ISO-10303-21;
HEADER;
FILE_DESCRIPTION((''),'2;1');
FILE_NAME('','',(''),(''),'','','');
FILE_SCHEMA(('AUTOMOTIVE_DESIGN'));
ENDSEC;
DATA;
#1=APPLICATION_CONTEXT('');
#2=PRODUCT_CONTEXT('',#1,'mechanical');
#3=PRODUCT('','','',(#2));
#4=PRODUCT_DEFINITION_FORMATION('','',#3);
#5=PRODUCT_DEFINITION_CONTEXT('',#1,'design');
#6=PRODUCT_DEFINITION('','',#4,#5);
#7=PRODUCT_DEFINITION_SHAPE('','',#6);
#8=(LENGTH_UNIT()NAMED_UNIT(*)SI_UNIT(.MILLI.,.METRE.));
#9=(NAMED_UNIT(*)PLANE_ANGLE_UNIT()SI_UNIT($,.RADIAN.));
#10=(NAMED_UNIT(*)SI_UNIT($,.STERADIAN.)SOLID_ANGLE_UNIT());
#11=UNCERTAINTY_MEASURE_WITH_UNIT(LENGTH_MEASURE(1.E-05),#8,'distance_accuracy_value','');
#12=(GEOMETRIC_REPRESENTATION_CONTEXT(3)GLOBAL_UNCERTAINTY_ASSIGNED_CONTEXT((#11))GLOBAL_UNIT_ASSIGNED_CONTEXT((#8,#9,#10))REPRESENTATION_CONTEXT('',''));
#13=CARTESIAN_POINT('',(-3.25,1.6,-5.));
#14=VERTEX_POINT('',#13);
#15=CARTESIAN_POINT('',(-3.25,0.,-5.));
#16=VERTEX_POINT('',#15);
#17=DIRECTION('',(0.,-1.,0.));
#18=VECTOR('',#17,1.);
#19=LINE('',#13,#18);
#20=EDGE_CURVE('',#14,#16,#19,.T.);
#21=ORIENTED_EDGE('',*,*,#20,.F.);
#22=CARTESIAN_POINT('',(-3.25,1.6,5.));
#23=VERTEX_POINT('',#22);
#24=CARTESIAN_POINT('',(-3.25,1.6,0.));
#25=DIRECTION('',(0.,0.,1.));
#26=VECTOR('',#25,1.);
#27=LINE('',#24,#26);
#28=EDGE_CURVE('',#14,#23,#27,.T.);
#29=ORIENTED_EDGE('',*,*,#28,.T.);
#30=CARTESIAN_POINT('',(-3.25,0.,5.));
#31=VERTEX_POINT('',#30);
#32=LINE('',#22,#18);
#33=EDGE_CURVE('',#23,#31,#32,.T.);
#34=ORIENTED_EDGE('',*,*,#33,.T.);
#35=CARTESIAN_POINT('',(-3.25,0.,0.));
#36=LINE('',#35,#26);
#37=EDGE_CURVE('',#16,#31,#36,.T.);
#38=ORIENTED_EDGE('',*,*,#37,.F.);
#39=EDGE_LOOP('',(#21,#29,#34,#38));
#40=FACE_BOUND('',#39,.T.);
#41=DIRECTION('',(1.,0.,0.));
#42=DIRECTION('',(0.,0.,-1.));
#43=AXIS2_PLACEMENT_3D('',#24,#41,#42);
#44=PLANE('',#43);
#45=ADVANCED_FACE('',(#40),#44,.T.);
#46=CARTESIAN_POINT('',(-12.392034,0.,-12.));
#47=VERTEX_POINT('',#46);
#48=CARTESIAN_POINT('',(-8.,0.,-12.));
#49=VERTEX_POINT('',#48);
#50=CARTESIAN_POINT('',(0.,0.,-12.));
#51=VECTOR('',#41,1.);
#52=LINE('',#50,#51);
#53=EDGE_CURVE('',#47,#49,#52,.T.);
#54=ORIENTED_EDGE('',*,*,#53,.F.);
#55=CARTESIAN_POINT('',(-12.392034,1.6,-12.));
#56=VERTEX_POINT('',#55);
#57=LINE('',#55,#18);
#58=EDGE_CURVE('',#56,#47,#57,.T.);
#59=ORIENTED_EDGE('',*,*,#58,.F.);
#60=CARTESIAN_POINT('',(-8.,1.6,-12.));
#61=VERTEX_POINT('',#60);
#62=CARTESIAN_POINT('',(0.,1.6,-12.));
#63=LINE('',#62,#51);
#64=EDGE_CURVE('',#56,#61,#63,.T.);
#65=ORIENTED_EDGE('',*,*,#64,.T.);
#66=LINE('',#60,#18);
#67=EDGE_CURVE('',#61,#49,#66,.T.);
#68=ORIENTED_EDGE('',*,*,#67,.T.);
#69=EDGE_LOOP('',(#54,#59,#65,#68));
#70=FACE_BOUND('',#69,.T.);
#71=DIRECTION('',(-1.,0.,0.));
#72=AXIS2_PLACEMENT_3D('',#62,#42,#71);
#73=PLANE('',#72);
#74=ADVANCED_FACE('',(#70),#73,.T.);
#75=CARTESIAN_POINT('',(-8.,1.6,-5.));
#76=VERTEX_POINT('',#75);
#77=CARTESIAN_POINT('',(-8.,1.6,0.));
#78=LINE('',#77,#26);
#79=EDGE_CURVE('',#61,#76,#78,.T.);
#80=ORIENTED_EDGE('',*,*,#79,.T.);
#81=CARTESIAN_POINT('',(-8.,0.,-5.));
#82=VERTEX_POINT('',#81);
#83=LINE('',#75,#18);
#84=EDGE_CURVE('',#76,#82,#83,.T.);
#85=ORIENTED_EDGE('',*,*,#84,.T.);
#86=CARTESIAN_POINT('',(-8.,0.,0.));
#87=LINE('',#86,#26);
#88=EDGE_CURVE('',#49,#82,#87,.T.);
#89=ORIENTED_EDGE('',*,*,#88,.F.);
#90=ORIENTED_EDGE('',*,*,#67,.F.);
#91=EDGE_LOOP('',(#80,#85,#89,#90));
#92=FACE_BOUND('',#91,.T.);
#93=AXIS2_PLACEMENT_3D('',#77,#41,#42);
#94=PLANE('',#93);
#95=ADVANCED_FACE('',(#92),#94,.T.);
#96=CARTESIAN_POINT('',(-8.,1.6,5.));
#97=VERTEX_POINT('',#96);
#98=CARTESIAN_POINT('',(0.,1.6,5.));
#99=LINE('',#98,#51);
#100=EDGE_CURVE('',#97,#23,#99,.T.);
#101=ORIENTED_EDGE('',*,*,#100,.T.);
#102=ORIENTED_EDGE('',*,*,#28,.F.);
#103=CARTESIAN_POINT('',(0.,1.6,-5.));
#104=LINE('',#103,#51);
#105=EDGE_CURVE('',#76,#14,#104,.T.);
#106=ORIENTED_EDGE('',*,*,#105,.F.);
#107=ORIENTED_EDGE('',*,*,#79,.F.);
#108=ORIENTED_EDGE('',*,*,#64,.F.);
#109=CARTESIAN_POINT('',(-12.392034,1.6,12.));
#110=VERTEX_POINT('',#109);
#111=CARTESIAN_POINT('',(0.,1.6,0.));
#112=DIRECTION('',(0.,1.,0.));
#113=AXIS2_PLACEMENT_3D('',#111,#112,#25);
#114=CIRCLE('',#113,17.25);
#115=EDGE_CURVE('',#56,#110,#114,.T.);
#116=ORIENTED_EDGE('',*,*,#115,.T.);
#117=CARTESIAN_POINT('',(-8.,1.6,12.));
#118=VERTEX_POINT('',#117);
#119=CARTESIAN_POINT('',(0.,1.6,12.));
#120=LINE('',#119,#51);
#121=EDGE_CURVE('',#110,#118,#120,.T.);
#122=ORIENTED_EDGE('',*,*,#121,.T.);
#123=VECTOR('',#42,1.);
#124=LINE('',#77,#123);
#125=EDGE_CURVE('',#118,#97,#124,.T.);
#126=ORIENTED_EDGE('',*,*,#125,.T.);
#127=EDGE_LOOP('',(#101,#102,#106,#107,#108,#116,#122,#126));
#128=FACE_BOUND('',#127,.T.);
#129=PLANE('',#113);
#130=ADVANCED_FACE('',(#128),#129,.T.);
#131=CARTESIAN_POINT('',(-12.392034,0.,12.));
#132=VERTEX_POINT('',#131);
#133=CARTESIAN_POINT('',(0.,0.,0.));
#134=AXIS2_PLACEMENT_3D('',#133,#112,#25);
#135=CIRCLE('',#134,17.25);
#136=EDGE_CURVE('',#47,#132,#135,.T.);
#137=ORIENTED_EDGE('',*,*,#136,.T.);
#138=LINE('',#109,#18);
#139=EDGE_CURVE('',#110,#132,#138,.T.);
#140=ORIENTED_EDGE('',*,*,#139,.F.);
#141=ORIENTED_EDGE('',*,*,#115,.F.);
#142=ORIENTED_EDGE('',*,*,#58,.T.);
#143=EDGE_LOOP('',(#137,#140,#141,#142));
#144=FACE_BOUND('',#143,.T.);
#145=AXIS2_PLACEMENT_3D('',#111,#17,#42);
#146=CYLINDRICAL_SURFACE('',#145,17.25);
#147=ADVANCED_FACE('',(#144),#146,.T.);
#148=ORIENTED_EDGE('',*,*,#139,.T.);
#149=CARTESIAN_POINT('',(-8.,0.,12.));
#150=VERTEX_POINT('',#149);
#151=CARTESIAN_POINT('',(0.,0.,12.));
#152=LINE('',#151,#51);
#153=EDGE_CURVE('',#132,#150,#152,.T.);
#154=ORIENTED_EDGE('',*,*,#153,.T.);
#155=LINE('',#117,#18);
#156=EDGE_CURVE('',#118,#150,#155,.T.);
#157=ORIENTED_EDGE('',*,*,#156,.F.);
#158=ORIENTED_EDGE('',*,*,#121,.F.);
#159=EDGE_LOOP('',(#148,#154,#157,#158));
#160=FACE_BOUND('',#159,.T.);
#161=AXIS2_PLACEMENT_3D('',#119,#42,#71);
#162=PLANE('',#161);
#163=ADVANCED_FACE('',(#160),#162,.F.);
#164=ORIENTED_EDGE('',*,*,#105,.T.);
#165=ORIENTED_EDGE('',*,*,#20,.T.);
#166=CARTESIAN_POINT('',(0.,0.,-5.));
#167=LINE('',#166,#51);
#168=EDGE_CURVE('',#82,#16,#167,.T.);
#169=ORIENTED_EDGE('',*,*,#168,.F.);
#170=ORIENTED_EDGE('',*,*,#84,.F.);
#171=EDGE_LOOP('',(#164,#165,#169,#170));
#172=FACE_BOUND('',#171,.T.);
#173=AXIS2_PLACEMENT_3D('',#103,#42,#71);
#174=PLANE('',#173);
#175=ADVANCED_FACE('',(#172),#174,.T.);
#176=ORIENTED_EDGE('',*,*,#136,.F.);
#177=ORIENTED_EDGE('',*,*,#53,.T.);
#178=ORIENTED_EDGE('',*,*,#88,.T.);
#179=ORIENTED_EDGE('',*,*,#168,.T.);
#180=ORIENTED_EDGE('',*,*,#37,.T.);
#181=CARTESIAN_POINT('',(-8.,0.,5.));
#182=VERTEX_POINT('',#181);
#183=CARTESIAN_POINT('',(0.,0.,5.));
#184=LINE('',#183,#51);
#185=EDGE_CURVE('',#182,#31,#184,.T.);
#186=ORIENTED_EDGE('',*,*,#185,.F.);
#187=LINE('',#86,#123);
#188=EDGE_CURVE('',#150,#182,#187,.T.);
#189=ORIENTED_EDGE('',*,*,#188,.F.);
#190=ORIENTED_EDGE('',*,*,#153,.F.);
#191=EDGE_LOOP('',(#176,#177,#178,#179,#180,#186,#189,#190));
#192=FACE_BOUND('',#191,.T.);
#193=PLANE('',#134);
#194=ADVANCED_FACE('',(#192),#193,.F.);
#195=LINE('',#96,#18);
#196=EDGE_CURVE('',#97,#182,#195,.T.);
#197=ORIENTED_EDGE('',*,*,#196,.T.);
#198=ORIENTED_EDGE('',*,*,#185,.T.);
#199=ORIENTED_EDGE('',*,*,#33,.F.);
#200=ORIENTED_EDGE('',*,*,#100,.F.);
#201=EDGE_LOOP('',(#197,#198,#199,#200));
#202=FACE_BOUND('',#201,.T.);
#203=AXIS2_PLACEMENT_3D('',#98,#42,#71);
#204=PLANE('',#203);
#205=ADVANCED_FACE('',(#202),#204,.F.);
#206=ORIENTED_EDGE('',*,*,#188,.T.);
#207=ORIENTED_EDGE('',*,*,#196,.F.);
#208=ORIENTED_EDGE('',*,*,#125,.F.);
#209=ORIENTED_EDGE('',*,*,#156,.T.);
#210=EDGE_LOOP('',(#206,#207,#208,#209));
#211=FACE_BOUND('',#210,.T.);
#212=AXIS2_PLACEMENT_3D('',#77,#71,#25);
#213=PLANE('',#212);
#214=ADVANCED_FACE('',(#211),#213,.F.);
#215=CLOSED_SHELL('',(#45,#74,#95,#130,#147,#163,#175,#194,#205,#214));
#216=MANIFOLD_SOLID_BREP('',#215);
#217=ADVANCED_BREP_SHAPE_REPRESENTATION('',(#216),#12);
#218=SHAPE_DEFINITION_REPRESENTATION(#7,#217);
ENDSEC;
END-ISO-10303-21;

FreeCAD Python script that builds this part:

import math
import FreeCAD as App
import Part
import Sketcher

V = App.Vector

doc = App.newDocument("Part")
body = doc.addObject("PartDesign::Body", "Body")

sketch1 = body.newObject("Sketcher::SketchObject", "Sketch")
sketch1.AttachmentSupport = (doc.getObject("XZ_Plane"), [""])
sketch1.MapMode = "FlatFace"
sketch1.addGeometry(Part.ArcOfCircle(Part.Circle(V(0, 0, 0), V(0, 0, 1), 17.2), math.radians(136), math.radians(180)), False)
sketch1.addGeometry(Part.LineSegment(V(-12.4, 12, 0), V(-8, 12, 0)), False)
sketch1.addGeometry(Part.LineSegment(V(-8, 12, 0), V(-8, 5, 0)), False)
sketch1.addGeometry(Part.LineSegment(V(-8, 5, 0), V(-3.2, 5, 0)), False)
sketch1.addGeometry(Part.LineSegment(V(-3.2, 5, 0), V(-3.2, -5, 0)), False)
sketch1.addGeometry(Part.LineSegment(V(-3.2, -5, 0), V(-8, -5, 0)), False)
sketch1.addGeometry(Part.LineSegment(V(-8, -5, 0), V(-8, -12, 0)), False)
sketch1.addGeometry(Part.LineSegment(V(-8, -12, 0), V(-12.4, -12, 0)), False)
sketch1.addGeometry(Part.ArcOfCircle(Part.Circle(V(0, 0, 0), V(0, 0, 1), 17.2), math.radians(180), math.radians(224)), False)
sketch1.addConstraint(Sketcher.Constraint("Coincident", 0, 1, 1, 1))
sketch1.addConstraint(Sketcher.Constraint("Coincident", 1, 2, 2, 1))
sketch1.addConstraint(Sketcher.Constraint("Coincident", 2, 2, 3, 1))
sketch1.addConstraint(Sketcher.Constraint("Coincident", 3, 2, 4, 1))
sketch1.addConstraint(Sketcher.Constraint("Coincident", 4, 2, 5, 1))
sketch1.addConstraint(Sketcher.Constraint("Coincident", 5, 2, 6, 1))
sketch1.addConstraint(Sketcher.Constraint("Coincident", 6, 2, 7, 1))
sketch1.addConstraint(Sketcher.Constraint("Coincident", 7, 2, 8, 2))
sketch1.addConstraint(Sketcher.Constraint("Tangent", 8, 1, 0, 2))
sketch1.addConstraint(Sketcher.Constraint("Horizontal", 1))
sketch1.addConstraint(Sketcher.Constraint("Vertical", 2))
sketch1.addConstraint(Sketcher.Constraint("Horizontal", 3))
sketch1.addConstraint(Sketcher.Constraint("Vertical", 4))
sketch1.addConstraint(Sketcher.Constraint("Horizontal", 5))
sketch1.addConstraint(Sketcher.Constraint("Vertical", 6))
sketch1.addConstraint(Sketcher.Constraint("Horizontal", 7))
sketch1.addConstraint(Sketcher.Constraint("Coincident", 0, 3, -1, 1))
sketch1.addConstraint(Sketcher.Constraint("Equal", 0, 8))
sketch1.addConstraint(Sketcher.Constraint("Symmetric", 2, 2, 5, 2, -1))
sketch1.addConstraint(Sketcher.Constraint("PointOnObject", 8, 1, -1))
sketch1.addConstraint(Sketcher.Constraint("Vertical", 0, 1, 7, 2))
sketch1.addConstraint(Sketcher.Constraint("DistanceY", 2, 2, 2, 1, 7.0))
sketch1.addConstraint(Sketcher.Constraint("DistanceY", 4, 2, 4, 1, 10.0))
sketch1.addConstraint(Sketcher.Constraint("Radius", 0, 17.25))
sketch1.addConstraint(Sketcher.Constraint("DistanceX", 1, 2, -1, 1, 8.0))
sketch1.addConstraint(Sketcher.Constraint("DistanceX", 8, 1, 3, 2, 14.0))
pad1 = body.newObject("PartDesign::Pad", "Pad")
pad1.Profile = sketch1
pad1.Length = 1.6
pad1.Reversed = True

doc.recompute()
